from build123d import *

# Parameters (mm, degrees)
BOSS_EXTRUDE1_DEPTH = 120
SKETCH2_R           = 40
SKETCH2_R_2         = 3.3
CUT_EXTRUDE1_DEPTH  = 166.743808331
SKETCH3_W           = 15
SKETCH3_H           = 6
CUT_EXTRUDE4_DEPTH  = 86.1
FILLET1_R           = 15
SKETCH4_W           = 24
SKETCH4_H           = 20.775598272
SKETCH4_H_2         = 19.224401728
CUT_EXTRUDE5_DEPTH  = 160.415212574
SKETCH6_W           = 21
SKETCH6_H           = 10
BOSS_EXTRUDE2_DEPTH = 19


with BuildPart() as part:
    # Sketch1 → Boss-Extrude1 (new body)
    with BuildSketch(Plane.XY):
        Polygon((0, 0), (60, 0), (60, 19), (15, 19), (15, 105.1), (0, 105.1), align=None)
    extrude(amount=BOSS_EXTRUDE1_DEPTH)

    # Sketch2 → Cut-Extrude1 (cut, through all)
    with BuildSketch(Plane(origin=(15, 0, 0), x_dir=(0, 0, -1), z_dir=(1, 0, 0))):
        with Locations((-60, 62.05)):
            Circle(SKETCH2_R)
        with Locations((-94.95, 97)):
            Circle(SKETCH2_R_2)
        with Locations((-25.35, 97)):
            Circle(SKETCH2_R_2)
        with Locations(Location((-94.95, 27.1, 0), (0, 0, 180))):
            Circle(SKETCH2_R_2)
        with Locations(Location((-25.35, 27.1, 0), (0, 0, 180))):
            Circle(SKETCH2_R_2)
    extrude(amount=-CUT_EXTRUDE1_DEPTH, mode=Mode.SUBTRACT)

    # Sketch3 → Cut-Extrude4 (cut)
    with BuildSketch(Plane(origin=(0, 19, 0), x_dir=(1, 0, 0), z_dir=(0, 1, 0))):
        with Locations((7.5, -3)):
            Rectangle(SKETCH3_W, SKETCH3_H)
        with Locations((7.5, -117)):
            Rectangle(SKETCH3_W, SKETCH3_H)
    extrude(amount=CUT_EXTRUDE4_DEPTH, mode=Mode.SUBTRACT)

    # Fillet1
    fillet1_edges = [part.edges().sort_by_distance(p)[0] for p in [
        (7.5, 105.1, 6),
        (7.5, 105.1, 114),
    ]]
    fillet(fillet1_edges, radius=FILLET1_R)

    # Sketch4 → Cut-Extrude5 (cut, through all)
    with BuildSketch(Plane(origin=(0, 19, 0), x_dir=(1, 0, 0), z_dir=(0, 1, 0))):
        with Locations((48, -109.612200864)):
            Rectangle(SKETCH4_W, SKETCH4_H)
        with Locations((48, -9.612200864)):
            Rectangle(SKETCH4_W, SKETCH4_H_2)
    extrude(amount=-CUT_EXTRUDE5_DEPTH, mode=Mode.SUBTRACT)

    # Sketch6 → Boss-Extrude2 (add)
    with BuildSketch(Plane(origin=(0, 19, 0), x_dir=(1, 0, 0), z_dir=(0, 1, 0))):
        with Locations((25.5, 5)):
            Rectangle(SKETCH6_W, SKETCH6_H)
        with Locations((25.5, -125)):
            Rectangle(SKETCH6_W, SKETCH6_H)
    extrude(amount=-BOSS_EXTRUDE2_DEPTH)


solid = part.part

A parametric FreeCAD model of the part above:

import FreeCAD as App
import Part
import Sketcher
Q = App.Units.Quantity


def edges_at(feature, points):
    """Names of the edges that pass closest to the given points."""
    edges = feature.Shape.Edges
    near = lambda p: min(range(len(edges)), key=lambda i: edges[i].distToShape(Part.Vertex(*p))[0])
    return sorted({f"Edge{near(p) + 1}" for p in points})

doc = App.newDocument("Part")
body = doc.addObject("PartDesign::Body", "Body")

sketch1 = doc.addObject("Sketcher::SketchObject", "Sketch")
body.addObject(sketch1)
sketch1.AttachmentSupport = (doc.XY_Plane, [""])
sketch1.MapMode = "FlatFace"
sketch1.addGeometry(Part.LineSegment(App.Vector(0, 0, 0), App.Vector(60, 0, 0)), False)
sketch1.addGeometry(Part.LineSegment(App.Vector(60, 0, 0), App.Vector(60, 19, 0)), False)
sketch1.addGeometry(Part.LineSegment(App.Vector(60, 19, 0), App.Vector(15, 19, 0)), False)
sketch1.addGeometry(Part.LineSegment(App.Vector(15, 19, 0), App.Vector(15, 105, 0)), False)
sketch1.addGeometry(Part.LineSegment(App.Vector(15, 105, 0), App.Vector(0, 105, 0)), False)
sketch1.addGeometry(Part.LineSegment(App.Vector(0, 105, 0), App.Vector(0, 0, 0)), False)
sketch1.addConstraint(Sketcher.Constraint("Coincident", 0, 2, 1, 1))
sketch1.addConstraint(Sketcher.Constraint("Coincident", 1, 2, 2, 1))
sketch1.addConstraint(Sketcher.Constraint("Coincident", 2, 2, 3, 1))
sketch1.addConstraint(Sketcher.Constraint("Coincident", 3, 2, 4, 1))
sketch1.addConstraint(Sketcher.Constraint("Coincident", 4, 2, 5, 1))
sketch1.addConstraint(Sketcher.Constraint("Coincident", 5, 2, 0, 1))
sketch1.addConstraint(Sketcher.Constraint("Horizontal", 0))
sketch1.addConstraint(Sketcher.Constraint("Vertical", 1))
sketch1.addConstraint(Sketcher.Constraint("Horizontal", 2))
sketch1.addConstraint(Sketcher.Constraint("Vertical", 3))
sketch1.addConstraint(Sketcher.Constraint("Horizontal", 4))
sketch1.addConstraint(Sketcher.Constraint("Vertical", 5))
sketch1.addConstraint(Sketcher.Constraint("Coincident", 5, 2, -1, 1))
sketch1.addConstraint(Sketcher.Constraint("DistanceX", 0, 1, 0, 2, Q("60 mm")))
sketch1.addConstraint(Sketcher.Constraint("DistanceX", 2, 2, 2, 1, Q("45 mm")))
sketch1.addConstraint(Sketcher.Constraint("DistanceY", 1, 1, 1, 2, Q("19 mm")))
sketch1.addConstraint(Sketcher.Constraint("DistanceY", 3, 1, 3, 2, Q("86.1 mm")))
pad1 = doc.addObject("PartDesign::Pad", "Pad")
body.addObject(pad1)
pad1.Profile = sketch1
pad1.Length = 120

sketch2 = doc.addObject("Sketcher::SketchObject", "Sketch001")
body.addObject(sketch2)
sketch2.AttachmentSupport = (doc.YZ_Plane, [""])
sketch2.MapMode = "FlatFace"
sketch2.AttachmentOffset = App.Placement(App.Vector(0, 0, 15), App.Rotation())
sketch2.addGeometry(Part.Circle(App.Vector(62, 60, 0), App.Vector(0, 0, 1), 40), False)
sketch2.addGeometry(Part.Circle(App.Vector(97, 95, 0), App.Vector(0, 0, 1), 3.3), False)
sketch2.addGeometry(Part.Circle(App.Vector(97, 25.4, 0), App.Vector(0, 0, 1), 3.3), False)
sketch2.addGeometry(Part.Circle(App.Vector(27.1, 95, 0), App.Vector(0, 0, 1), 3.3), False)
sketch2.addGeometry(Part.Circle(App.Vector(27.1, 25.4, 0), App.Vector(0, 0, 1), 3.3), False)
sketch2.addConstraint(Sketcher.Constraint("Equal", 1, 2))
sketch2.addConstraint(Sketcher.Constraint("Equal", 2, 3))
sketch2.addConstraint(Sketcher.Constraint("Equal", 3, 4))
sketch2.addConstraint(Sketcher.Constraint("Horizontal", 1, 3, 3, 3))
sketch2.addConstraint(Sketcher.Constraint("Horizontal", 2, 3, 4, 3))
sketch2.addConstraint(Sketcher.Constraint("Vertical", 1, 3, 2, 3))
sketch2.addConstraint(Sketcher.Constraint("Vertical", 3, 3, 4, 3))
sketch2.addConstraint(Sketcher.Constraint("Diameter", 0, Q("80 mm")))
sketch2.addConstraint(Sketcher.Constraint("Diameter", 1, Q("6.6 mm")))
sketch2.addConstraint(Sketcher.Constraint("DistanceY", -1, 1, 0, 3, Q("60 mm")))
sketch2.addConstraint(Sketcher.Constraint("DistanceX", -1, 1, 1, 3, Q("97 mm")))
sketch2.addConstraint(Sketcher.Constraint("DistanceX", -1, 1, 3, 3, Q("27.1 mm")))
sketch2.addConstraint(Sketcher.Constraint("DistanceY", 2, 3, 1, 3, Q("69.6 mm")))
sketch2.addConstraint(Sketcher.Constraint("DistanceX", -1, 1, 0, 3, Q("62.05 mm")))
sketch2.addConstraint(Sketcher.Constraint("DistanceY", -1, 1, 1, 3, Q("94.95 mm")))
pocket1 = doc.addObject("PartDesign::Pocket", "Pocket")
body.addObject(pocket1)
pocket1.Profile = sketch2
pocket1.Type = "ThroughAll"

sketch3 = doc.addObject("Sketcher::SketchObject", "Sketch002")
body.addObject(sketch3)
sketch3.AttachmentSupport = (doc.XZ_Plane, [""])
sketch3.MapMode = "FlatFace"
sketch3.AttachmentOffset = App.Placement(App.Vector(0, 0, -19), App.Rotation())
sketch3.addGeometry(Part.LineSegment(App.Vector(0, 0, 0), App.Vector(0, 6, 0)), False)
sketch3.addGeometry(Part.LineSegment(App.Vector(0, 6, 0), App.Vector(15, 6, 0)), False)
sketch3.addGeometry(Part.LineSegment(App.Vector(15, 6, 0), App.Vector(15, 0, 0)), False)
sketch3.addGeometry(Part.LineSegment(App.Vector(15, 0, 0), App.Vector(0, 0, 0)), False)
sketch3.addGeometry(Part.LineSegment(App.Vector(0, 114, 0), App.Vector(0, 120, 0)), False)
sketch3.addGeometry(Part.LineSegment(App.Vector(0, 120, 0), App.Vector(15, 120, 0)), False)
sketch3.addGeometry(Part.LineSegment(App.Vector(15, 120, 0), App.Vector(15, 114, 0)), False)
sketch3.addGeometry(Part.LineSegment(App.Vector(15, 114, 0), App.Vector(0, 114, 0)), False)
sketch3.addConstraint(Sketcher.Constraint("Coincident", 0, 2, 1, 1))
sketch3.addConstraint(Sketcher.Constraint("Coincident", 1, 2, 2, 1))
sketch3.addConstraint(Sketcher.Constraint("Coincident", 2, 2, 3, 1))
sketch3.addConstraint(Sketcher.Constraint("Coincident", 3, 2, 0, 1))
sketch3.addConstraint(Sketcher.Constraint("Coincident", 4, 2, 5, 1))
sketch3.addConstraint(Sketcher.Constraint("Coincident", 5, 2, 6, 1))
sketch3.addConstraint(Sketcher.Constraint("Coincident", 6, 2, 7, 1))
sketch3.addConstraint(Sketcher.Constraint("Coincident", 7, 2, 4, 1))
sketch3.addConstraint(Sketcher.Constraint("Vertical", 0))
sketch3.addConstraint(Sketcher.Constraint("Horizontal", 1))
sketch3.addConstraint(Sketcher.Constraint("Vertical", 2))
sketch3.addConstraint(Sketcher.Constraint("Horizontal", 3))
sketch3.addConstraint(Sketcher.Constraint("Vertical", 4))
sketch3.addConstraint(Sketcher.Constraint("Horizontal", 5))
sketch3.addConstraint(Sketcher.Constraint("Vertical", 6))
sketch3.addConstraint(Sketcher.Constraint("Horizontal", 7))
sketch3.addConstraint(Sketcher.Constraint("Coincident", 3, 2, -1, 1))
sketch3.addConstraint(Sketcher.Constraint("PointOnObject", 4, 2, -2))
sketch3.addConstraint(Sketcher.Constraint("Vertical", 2, 2, 5, 2))
sketch3.addConstraint(Sketcher.Constraint("Equal", 2, 4))
sketch3.addConstraint(Sketcher.Constraint("DistanceX", 1, 1, 1, 2, Q("15 mm")))
sketch3.addConstraint(Sketcher.Constraint("DistanceY", 0, 1, 0, 2, Q("6 mm")))
sketch3.addConstraint(Sketcher.Constraint("DistanceY", -1, 1, 4, 2, Q("120 mm")))
pocket2 = doc.addObject("PartDesign::Pocket", "Pocket001")
body.addObject(pocket2)
pocket2.Profile = sketch3
pocket2.Length = 86.1
doc.recompute()

fillet = doc.addObject("PartDesign::Fillet", "Fillet")
body.addObject(fillet)
fillet.Base = (pocket2, edges_at(pocket2, [(7.5, 105.1, 6), (7.5, 105.1, 114)]))
fillet.Radius = 15

sketch4 = doc.addObject("Sketcher::SketchObject", "Sketch003")
body.addObject(sketch4)
sketch4.AttachmentSupport = (doc.XZ_Plane, [""])
sketch4.MapMode = "FlatFace"
sketch4.AttachmentOffset = App.Placement(App.Vector(0, 0, -19), App.Rotation())
sketch4.addGeometry(Part.LineSegment(App.Vector(36, 99, 0), App.Vector(36, 120, 0)), False)
sketch4.addGeometry(Part.LineSegment(App.Vector(36, 120, 0), App.Vector(60, 120, 0)), False)
sketch4.addGeometry(Part.LineSegment(App.Vector(60, 120, 0), App.Vector(60, 99, 0)), False)
sketch4.addGeometry(Part.LineSegment(App.Vector(60, 99, 0), App.Vector(36, 99, 0)), False)
sketch4.addGeometry(Part.LineSegment(App.Vector(36, 0, 0), App.Vector(36, 19, 0)), False)
sketch4.addGeometry(Part.LineSegment(App.Vector(36, 19, 0), App.Vector(60, 19, 0)), False)
sketch4.addGeometry(Part.LineSegment(App.Vector(60, 19, 0), App.Vector(60, 0, 0)), False)
sketch4.addGeometry(Part.LineSegment(App.Vector(60, 0, 0), App.Vector(36, 0, 0)), False)
sketch4.addConstraint(Sketcher.Constraint("Coincident", 0, 2, 1, 1))
sketch4.addConstraint(Sketcher.Constraint("Coincident", 1, 2, 2, 1))
sketch4.addConstraint(Sketcher.Constraint("Coincident", 2, 2, 3, 1))
sketch4.addConstraint(Sketcher.Constraint("Coincident", 3, 2, 0, 1))
sketch4.addConstraint(Sketcher.Constraint("Coincident", 4, 2, 5, 1))
sketch4.addConstraint(Sketcher.Constraint("Coincident", 5, 2, 6, 1))
sketch4.addConstraint(Sketcher.Constraint("Coincident", 6, 2, 7, 1))
sketch4.addConstraint(Sketcher.Constraint("Coincident", 7, 2, 4, 1))
sketch4.addConstraint(Sketcher.Constraint("Vertical", 0))
sketch4.addConstraint(Sketcher.Constraint("Horizontal", 1))
sketch4.addConstraint(Sketcher.Constraint("Vertical", 2))
sketch4.addConstraint(Sketcher.Constraint("Horizontal", 3))
sketch4.addConstraint(Sketcher.Constraint("Vertical", 4))
sketch4.addConstraint(Sketcher.Constraint("Horizontal", 5))
sketch4.addConstraint(Sketcher.Constraint("Vertical", 6))
sketch4.addConstraint(Sketcher.Constraint("Horizontal", 7))
sketch4.addConstraint(Sketcher.Constraint("PointOnObject", 6, 2, -1))
sketch4.addConstraint(Sketcher.Constraint("Vertical", 3, 2, 4, 2))
sketch4.addConstraint(Sketcher.Constraint("Vertical", 2, 2, 5, 2))
sketch4.addConstraint(Sketcher.Constraint("DistanceX", 1, 1, 1, 2, Q("24 mm")))
sketch4.addConstraint(Sketcher.Constraint("DistanceX", -1, 1, 0, 2, Q("36 mm")))
sketch4.addConstraint(Sketcher.Constraint("DistanceY", -1, 1, 0, 2, Q("120 mm")))
sketch4.addConstraint(Sketcher.Constraint("DistanceY", 4, 2, 3, 2, Q("80 mm")))
sketch4.addConstraint(Sketcher.Constraint("DistanceY", 0, 1, 0, 2, Q("20.775598 mm")))
pocket3 = doc.addObject("PartDesign::Pocket", "Pocket002")
body.addObject(pocket3)
pocket3.Profile = sketch4
pocket3.Type = "ThroughAll"
pocket3.Reversed = True

sketch5 = doc.addObject("Sketcher::SketchObject", "Sketch004")
body.addObject(sketch5)
sketch5.AttachmentSupport = (doc.XZ_Plane, [""])
sketch5.MapMode = "FlatFace"
sketch5.AttachmentOffset = App.Placement(App.Vector(0, 0, -19), App.Rotation())
sketch5.addGeometry(Part.LineSegment(App.Vector(15, -10, 0), App.Vector(15, 0, 0)), False)
sketch5.addGeometry(Part.LineSegment(App.Vector(15, 0, 0), App.Vector(36, 0, 0)), False)
sketch5.addGeometry(Part.LineSegment(App.Vector(36, 0, 0), App.Vector(36, -10, 0)), False)
sketch5.addGeometry(Part.LineSegment(App.Vector(36, -10, 0), App.Vector(15, -10, 0)), False)
sketch5.addGeometry(Part.LineSegment(App.Vector(15, 120, 0), App.Vector(15, 130, 0)), False)
sketch5.addGeometry(Part.LineSegment(App.Vector(15, 130, 0), App.Vector(36, 130, 0)), False)
sketch5.addGeometry(Part.LineSegment(App.Vector(36, 130, 0), App.Vector(36, 120, 0)), False)
sketch5.addGeometry(Part.LineSegment(App.Vector(36, 120, 0), App.Vector(15, 120, 0)), False)
sketch5.addConstraint(Sketcher.Constraint("Coincident", 0, 2, 1, 1))
sketch5.addConstraint(Sketcher.Constraint("Coincident", 1, 2, 2, 1))
sketch5.addConstraint(Sketcher.Constraint("Coincident", 2, 2, 3, 1))
sketch5.addConstraint(Sketcher.Constraint("Coincident", 3, 2, 0, 1))
sketch5.addConstraint(Sketcher.Constraint("Coincident", 4, 2, 5, 1))
sketch5.addConstraint(Sketcher.Constraint("Coincident", 5, 2, 6, 1))
sketch5.addConstraint(Sketcher.Constraint("Coincident", 6, 2, 7, 1))
sketch5.addConstraint(Sketcher.Constraint("Coincident", 7, 2, 4, 1))
sketch5.addConstraint(Sketcher.Constraint("Vertical", 0))
sketch5.addConstraint(Sketcher.Constraint("Horizontal", 1))
sketch5.addConstraint(Sketcher.Constraint("Vertical", 2))
sketch5.addConstraint(Sketcher.Constraint("Horizontal", 3))
sketch5.addConstraint(Sketcher.Constraint("Vertical", 4))
sketch5.addConstraint(Sketcher.Constraint("Horizontal", 5))
sketch5.addConstraint(Sketcher.Constraint("Vertical", 6))
sketch5.addConstraint(Sketcher.Constraint("Horizontal", 7))
sketch5.addConstraint(Sketcher.Constraint("PointOnObject", 0, 2, -1))
sketch5.addConstraint(Sketcher.Constraint("Vertical", 3, 2, 4, 2))
sketch5.addConstraint(Sketcher.Constraint("Vertical", 2, 2, 5, 2))
sketch5.addConstraint(Sketcher.Constraint("Equal", 2, 4))
sketch5.addConstraint(Sketcher.Constraint("DistanceX", 1, 1, 1, 2, Q("21 mm")))
sketch5.addConstraint(Sketcher.Constraint("DistanceY", 0, 1, 0, 2, Q("10 mm")))
sketch5.addConstraint(Sketcher.Constraint("DistanceX", -1, 1, 0, 2, Q("15 mm")))
sketch5.addConstraint(Sketcher.Constraint("DistanceY", -1, 1, 4, 2, Q("130 mm")))
pad2 = doc.addObject("PartDesign::Pad", "Pad001")
body.addObject(pad2)
pad2.Profile = sketch5
pad2.Length = 19

doc.recompute()
